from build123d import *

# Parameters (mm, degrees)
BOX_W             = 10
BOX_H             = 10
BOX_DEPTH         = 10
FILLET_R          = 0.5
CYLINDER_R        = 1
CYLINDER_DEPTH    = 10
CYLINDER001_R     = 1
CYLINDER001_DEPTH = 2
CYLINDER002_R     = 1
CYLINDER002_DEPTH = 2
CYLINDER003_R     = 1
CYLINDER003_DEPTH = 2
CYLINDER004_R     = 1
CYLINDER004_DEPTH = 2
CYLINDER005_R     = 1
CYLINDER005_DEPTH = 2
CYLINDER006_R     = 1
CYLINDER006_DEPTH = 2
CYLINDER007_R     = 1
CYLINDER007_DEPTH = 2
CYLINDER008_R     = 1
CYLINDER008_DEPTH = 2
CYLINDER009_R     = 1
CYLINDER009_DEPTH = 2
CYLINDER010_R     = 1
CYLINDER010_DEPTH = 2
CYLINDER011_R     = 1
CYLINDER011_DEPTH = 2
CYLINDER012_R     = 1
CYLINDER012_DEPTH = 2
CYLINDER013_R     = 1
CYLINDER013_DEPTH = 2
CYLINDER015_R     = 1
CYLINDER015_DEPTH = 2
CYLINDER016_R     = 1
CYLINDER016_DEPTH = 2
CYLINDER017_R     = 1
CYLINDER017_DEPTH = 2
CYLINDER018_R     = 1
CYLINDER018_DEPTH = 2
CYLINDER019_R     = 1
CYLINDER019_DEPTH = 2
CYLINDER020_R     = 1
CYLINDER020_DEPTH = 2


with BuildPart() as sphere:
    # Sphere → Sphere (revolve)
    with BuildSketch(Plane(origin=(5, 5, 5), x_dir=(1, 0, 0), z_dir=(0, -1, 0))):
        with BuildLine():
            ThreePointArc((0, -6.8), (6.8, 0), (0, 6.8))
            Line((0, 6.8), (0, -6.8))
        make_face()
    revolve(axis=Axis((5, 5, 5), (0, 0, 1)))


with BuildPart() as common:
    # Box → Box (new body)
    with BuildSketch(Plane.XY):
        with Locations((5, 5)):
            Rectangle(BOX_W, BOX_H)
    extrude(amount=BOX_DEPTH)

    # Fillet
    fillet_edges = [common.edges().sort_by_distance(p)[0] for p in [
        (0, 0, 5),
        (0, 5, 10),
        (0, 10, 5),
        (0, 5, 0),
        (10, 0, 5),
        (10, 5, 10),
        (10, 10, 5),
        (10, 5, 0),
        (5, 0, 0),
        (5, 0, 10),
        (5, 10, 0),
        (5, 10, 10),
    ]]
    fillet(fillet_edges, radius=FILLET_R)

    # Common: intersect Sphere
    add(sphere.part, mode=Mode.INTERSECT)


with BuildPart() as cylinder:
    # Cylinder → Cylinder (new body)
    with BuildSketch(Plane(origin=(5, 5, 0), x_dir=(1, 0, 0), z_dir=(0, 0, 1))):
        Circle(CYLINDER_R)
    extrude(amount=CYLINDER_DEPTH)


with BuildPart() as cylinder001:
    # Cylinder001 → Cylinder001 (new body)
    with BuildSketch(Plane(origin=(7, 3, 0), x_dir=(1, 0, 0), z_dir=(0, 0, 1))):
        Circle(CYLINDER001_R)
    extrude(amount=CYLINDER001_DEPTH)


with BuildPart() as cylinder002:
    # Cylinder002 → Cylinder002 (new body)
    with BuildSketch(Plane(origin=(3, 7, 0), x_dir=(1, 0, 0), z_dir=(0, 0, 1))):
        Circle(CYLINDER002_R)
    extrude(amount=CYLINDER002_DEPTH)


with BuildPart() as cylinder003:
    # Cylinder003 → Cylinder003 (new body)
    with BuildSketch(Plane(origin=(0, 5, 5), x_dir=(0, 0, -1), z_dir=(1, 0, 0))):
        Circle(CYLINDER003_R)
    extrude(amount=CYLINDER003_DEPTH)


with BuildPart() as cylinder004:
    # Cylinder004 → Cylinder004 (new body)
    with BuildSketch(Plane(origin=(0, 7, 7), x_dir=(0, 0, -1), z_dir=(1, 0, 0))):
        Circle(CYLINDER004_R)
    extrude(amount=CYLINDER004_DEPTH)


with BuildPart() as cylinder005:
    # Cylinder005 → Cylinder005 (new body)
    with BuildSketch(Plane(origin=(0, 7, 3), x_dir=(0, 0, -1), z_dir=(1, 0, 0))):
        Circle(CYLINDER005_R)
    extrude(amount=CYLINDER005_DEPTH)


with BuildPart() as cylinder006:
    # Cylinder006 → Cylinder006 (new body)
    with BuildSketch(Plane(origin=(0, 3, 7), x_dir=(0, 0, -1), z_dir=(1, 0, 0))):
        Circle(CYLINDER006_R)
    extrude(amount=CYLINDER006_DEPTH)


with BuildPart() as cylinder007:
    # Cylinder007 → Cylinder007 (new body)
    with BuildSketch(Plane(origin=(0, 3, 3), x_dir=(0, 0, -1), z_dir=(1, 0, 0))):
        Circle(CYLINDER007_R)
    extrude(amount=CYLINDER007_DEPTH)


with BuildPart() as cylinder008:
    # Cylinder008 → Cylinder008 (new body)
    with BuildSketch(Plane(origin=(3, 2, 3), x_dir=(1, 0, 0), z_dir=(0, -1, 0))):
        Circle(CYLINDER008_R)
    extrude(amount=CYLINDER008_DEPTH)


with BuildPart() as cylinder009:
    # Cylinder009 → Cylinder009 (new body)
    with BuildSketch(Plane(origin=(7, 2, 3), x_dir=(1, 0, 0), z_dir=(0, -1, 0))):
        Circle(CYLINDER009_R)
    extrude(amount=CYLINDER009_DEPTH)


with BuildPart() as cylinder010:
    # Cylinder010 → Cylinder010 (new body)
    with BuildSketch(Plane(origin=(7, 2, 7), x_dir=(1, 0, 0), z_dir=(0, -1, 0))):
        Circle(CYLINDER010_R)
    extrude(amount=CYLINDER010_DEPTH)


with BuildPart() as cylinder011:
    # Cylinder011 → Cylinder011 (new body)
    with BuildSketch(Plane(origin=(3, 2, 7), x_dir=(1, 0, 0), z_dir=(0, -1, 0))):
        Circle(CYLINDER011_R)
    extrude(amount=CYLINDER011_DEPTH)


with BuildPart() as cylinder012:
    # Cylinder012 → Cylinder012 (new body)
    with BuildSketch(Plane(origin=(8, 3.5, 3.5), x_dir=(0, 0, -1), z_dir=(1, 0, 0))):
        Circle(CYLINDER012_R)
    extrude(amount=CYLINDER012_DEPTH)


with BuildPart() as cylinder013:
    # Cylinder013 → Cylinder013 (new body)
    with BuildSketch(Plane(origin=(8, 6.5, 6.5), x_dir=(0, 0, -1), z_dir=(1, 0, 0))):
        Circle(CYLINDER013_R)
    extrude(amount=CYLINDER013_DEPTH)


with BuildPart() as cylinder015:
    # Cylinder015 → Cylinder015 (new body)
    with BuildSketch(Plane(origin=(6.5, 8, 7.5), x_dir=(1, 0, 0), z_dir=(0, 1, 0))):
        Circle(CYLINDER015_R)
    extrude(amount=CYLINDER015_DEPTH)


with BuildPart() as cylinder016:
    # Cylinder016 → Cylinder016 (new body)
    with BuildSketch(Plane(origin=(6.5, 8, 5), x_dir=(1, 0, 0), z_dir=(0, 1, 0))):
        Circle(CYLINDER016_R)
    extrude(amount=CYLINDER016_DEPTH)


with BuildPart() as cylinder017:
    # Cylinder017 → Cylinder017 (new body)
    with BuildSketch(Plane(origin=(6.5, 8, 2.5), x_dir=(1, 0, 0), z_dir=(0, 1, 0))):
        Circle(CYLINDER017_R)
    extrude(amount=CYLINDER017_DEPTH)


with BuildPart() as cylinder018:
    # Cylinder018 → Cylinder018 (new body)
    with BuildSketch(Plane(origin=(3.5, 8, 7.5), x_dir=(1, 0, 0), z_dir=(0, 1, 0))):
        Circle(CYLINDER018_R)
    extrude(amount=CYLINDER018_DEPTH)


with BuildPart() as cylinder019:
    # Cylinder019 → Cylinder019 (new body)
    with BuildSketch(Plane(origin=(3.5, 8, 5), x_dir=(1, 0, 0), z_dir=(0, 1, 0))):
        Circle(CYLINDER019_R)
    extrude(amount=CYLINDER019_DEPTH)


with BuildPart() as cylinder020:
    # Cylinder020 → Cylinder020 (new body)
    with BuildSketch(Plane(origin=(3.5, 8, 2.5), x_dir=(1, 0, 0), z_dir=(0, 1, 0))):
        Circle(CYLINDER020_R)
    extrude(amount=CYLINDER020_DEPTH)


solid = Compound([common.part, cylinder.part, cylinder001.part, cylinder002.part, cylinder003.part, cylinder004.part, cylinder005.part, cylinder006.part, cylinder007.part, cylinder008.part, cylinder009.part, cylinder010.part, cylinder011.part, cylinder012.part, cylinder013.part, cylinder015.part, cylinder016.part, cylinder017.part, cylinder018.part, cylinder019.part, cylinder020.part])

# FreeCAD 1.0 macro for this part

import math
import FreeCAD as App
import Part
import Sketcher


def add_polygon(sketch, points):
    """Adds a closed chain of lines whose ends are joined by coincident constraints."""
    first, n = sketch.GeometryCount, len(points)
    for a, b in zip(points, points[1:] + points[:1]):
        sketch.addGeometry(Part.LineSegment(App.Vector(*a, 0), App.Vector(*b, 0)), False)
    for i in range(n):
        sketch.addConstraint(Sketcher.Constraint("Coincident", first + i, 2, first + (i + 1) % n, 1))

doc = App.newDocument("Part")
body = doc.addObject("PartDesign::Body", "Body")

# Sketch on XZ plane
sketch1 = doc.addObject("Sketcher::SketchObject", "Sketch")
body.addObject(sketch1)
sketch1.AttachmentSupport = (doc.XZ_Plane, [""])
sketch1.MapMode = "FlatFace"
sketch1.AttachmentOffset = App.Placement(App.Vector(0, 0, -5), App.Rotation())
sketch1.addGeometry([
    Part.ArcOfCircle(Part.Circle(App.Vector(5, 5, 0), App.Vector(0, 0, 1), 7), math.radians(-90), math.radians(90)),
    Part.LineSegment(App.Vector(5, 12, 0), App.Vector(5, -2, 0)),
], False)
sketch1.addGeometry(Part.LineSegment(App.Vector(5, -2, 0), App.Vector(5, 12, 0)), True)  # axis
sketch1.addConstraint([
    Sketcher.Constraint("Coincident", 0, 1, 1, 2),
    Sketcher.Constraint("Coincident", 1, 1, 0, 2),
    Sketcher.Constraint("Vertical", 1),
    Sketcher.Constraint("Vertical", 2),
    Sketcher.Constraint("Coincident", 2, 1, 0, 1),
    Sketcher.Constraint("Equal", 1, 2),
    Sketcher.Constraint("Radius", 0, 6.8),
    Sketcher.Constraint("DistanceX", -1, 1, 0, 3, 5.0),
    Sketcher.Constraint("DistanceY", -1, 1, 0, 3, 5.0),
    Sketcher.Constraint("DistanceX", -1, 1, 0, 1, 5.0),
])
revolution = doc.addObject("PartDesign::Revolution", "Revolution")
body.addObject(revolution)
revolution.Profile = sketch1
revolution.ReferenceAxis = (sketch1, ["Axis0"])
revolution.Angle = 360
body2 = doc.addObject("PartDesign::Body", "Body001")

# Sketch on XY plane
sketch2 = doc.addObject("Sketcher::SketchObject", "Sketch001")
body2.addObject(sketch2)
sketch2.AttachmentSupport = (doc.getObject("XY_Plane001"), [""])
sketch2.MapMode = "FlatFace"
add_polygon(sketch2, [(0, 10), (0, 0), (10, 0), (10, 10)])  # lines 0-3
sketch2.addConstraint([
    Sketcher.Constraint("Vertical", 0),
    Sketcher.Constraint("Horizontal", 1),
    Sketcher.Constraint("Vertical", 2),
    Sketcher.Constraint("Horizontal", 3),
    Sketcher.Constraint("Coincident", 0, 2, -1, 1),
    Sketcher.Constraint("Equal", 3, 0),
    Sketcher.Constraint("DistanceX", 1, 1, 1, 2, 10.0),
])
pad1 = doc.addObject("PartDesign::Pad", "Pad")
body2.addObject(pad1)
pad1.Profile = sketch2
pad1.Length = 10
doc.recompute()

fillet = doc.addObject("PartDesign::Fillet", "Fillet")
body2.addObject(fillet)
fillet.Base = (pad1, ["Edge1"])
fillet.UseAllEdges = True
fillet.Radius = 0.5
doc.recompute()

boolean = doc.addObject("PartDesign::Boolean", "Boolean")
body2.addObject(boolean)
boolean.Type = "Common"
boolean.addObjects([body])
body3 = doc.addObject("PartDesign::Body", "Body002")

# Sketch on XY plane
sketch3 = doc.addObject("Sketcher::SketchObject", "Sketch002")
body3.addObject(sketch3)
sketch3.AttachmentSupport = (doc.getObject("XY_Plane002"), [""])
sketch3.MapMode = "FlatFace"
sketch3.addGeometry(Part.Circle(App.Vector(5, 5, 0), App.Vector(0, 0, 1), 1), False)
sketch3.addConstraint([
    Sketcher.Constraint("Diameter", 0, 2.0),
    Sketcher.Constraint("DistanceX", -1, 1, 0, 3, 5.0),
    Sketcher.Constraint("DistanceY", -1, 1, 0, 3, 5.0),
])
pad2 = doc.addObject("PartDesign::Pad", "Pad001")
body3.addObject(pad2)
pad2.Profile = sketch3
pad2.Length = 10
body4 = doc.addObject("PartDesign::Body", "Body003")

# Sketch on XY plane
sketch4 = doc.addObject("Sketcher::SketchObject", "Sketch003")
body4.addObject(sketch4)
sketch4.AttachmentSupport = (doc.getObject("XY_Plane003"), [""])
sketch4.MapMode = "FlatFace"
sketch4.addGeometry(Part.Circle(App.Vector(7, 3, 0), App.Vector(0, 0, 1), 1), False)
sketch4.addConstraint([
    Sketcher.Constraint("Diameter", 0, 2.0),
    Sketcher.Constraint("DistanceX", -1, 1, 0, 3, 7.0),
    Sketcher.Constraint("DistanceY", -1, 1, 0, 3, 3.0),
])
pad3 = doc.addObject("PartDesign::Pad", "Pad002")
body4.addObject(pad3)
pad3.Profile = sketch4
pad3.Length = 2
body5 = doc.addObject("PartDesign::Body", "Body004")

# Sketch on XY plane
sketch5 = doc.addObject("Sketcher::SketchObject", "Sketch004")
body5.addObject(sketch5)
sketch5.AttachmentSupport = (doc.getObject("XY_Plane004"), [""])
sketch5.MapMode = "FlatFace"
sketch5.addGeometry(Part.Circle(App.Vector(3, 7, 0), App.Vector(0, 0, 1), 1), False)
sketch5.addConstraint([
    Sketcher.Constraint("Diameter", 0, 2.0),
    Sketcher.Constraint("DistanceX", -1, 1, 0, 3, 3.0),
    Sketcher.Constraint("DistanceY", -1, 1, 0, 3, 7.0),
])
pad4 = doc.addObject("PartDesign::Pad", "Pad003")
body5.addObject(pad4)
pad4.Profile = sketch5
pad4.Length = 2
body6 = doc.addObject("PartDesign::Body", "Body005")

# Sketch on YZ plane
sketch6 = doc.addObject("Sketcher::SketchObject", "Sketch005")
body6.addObject(sketch6)
sketch6.AttachmentSupport = (doc.getObject("YZ_Plane005"), [""])
sketch6.MapMode = "FlatFace"
sketch6.addGeometry(Part.Circle(App.Vector(5, 5, 0), App.Vector(0, 0, 1), 1), False)
sketch6.addConstraint([
    Sketcher.Constraint("Diameter", 0, 2.0),
    Sketcher.Constraint("DistanceX", -1, 1, 0, 3, 5.0),
    Sketcher.Constraint("DistanceY", -1, 1, 0, 3, 5.0),
])
pad5 = doc.addObject("PartDesign::Pad", "Pad004")
body6.addObject(pad5)
pad5.Profile = sketch6
pad5.Length = 2
body7 = doc.addObject("PartDesign::Body", "Body006")

# Sketch on YZ plane
sketch7 = doc.addObject("Sketcher::SketchObject", "Sketch006")
body7.addObject(sketch7)
sketch7.AttachmentSupport = (doc.getObject("YZ_Plane006"), [""])
sketch7.MapMode = "FlatFace"
sketch7.addGeometry(Part.Circle(App.Vector(7, 7, 0), App.Vector(0, 0, 1), 1), False)
sketch7.addConstraint([
    Sketcher.Constraint("Diameter", 0, 2.0),
    Sketcher.Constraint("DistanceX", -1, 1, 0, 3, 7.0),
    Sketcher.Constraint("DistanceY", -1, 1, 0, 3, 7.0),
])
pad6 = doc.addObject("PartDesign::Pad", "Pad005")
body7.addObject(pad6)
pad6.Profile = sketch7
pad6.Length = 2
body8 = doc.addObject("PartDesign::Body", "Body007")

# Sketch on YZ plane
sketch8 = doc.addObject("Sketcher::SketchObject", "Sketch007")
body8.addObject(sketch8)
sketch8.AttachmentSupport = (doc.getObject("YZ_Plane007"), [""])
sketch8.MapMode = "FlatFace"
sketch8.addGeometry(Part.Circle(App.Vector(7, 3, 0), App.Vector(0, 0, 1), 1), False)
sketch8.addConstraint([
    Sketcher.Constraint("Diameter", 0, 2.0),
    Sketcher.Constraint("DistanceX", -1, 1, 0, 3, 7.0),
    Sketcher.Constraint("DistanceY", -1, 1, 0, 3, 3.0),
])
pad7 = doc.addObject("PartDesign::Pad", "Pad006")
body8.addObject(pad7)
pad7.Profile = sketch8
pad7.Length = 2
body9 = doc.addObject("PartDesign::Body", "Body008")

# Sketch on YZ plane
sketch9 = doc.addObject("Sketcher::SketchObject", "Sketch008")
body9.addObject(sketch9)
sketch9.AttachmentSupport = (doc.getObject("YZ_Plane008"), [""])
sketch9.MapMode = "FlatFace"
sketch9.addGeometry(Part.Circle(App.Vector(3, 7, 0), App.Vector(0, 0, 1), 1), False)
sketch9.addConstraint([
    Sketcher.Constraint("Diameter", 0, 2.0),
    Sketcher.Constraint("DistanceX", -1, 1, 0, 3, 3.0),
    Sketcher.Constraint("DistanceY", -1, 1, 0, 3, 7.0),
])
pad8 = doc.addObject("PartDesign::Pad", "Pad007")
body9.addObject(pad8)
pad8.Profile = sketch9
pad8.Length = 2
body10 = doc.addObject("PartDesign::Body", "Body009")

# Sketch on YZ plane
sketch10 = doc.addObject("Sketcher::SketchObject", "Sketch009")
body10.addObject(sketch10)
sketch10.AttachmentSupport = (doc.getObject("YZ_Plane009"), [""])
sketch10.MapMode = "FlatFace"
sketch10.addGeometry(Part.Circle(App.Vector(3, 3, 0), App.Vector(0, 0, 1), 1), False)
sketch10.addConstraint([
    Sketcher.Constraint("Diameter", 0, 2.0),
    Sketcher.Constraint("DistanceX", -1, 1, 0, 3, 3.0),
    Sketcher.Constraint("DistanceY", -1, 1, 0, 3, 3.0),
])
pad9 = doc.addObject("PartDesign::Pad", "Pad008")
body10.addObject(pad9)
pad9.Profile = sketch10
pad9.Length = 2
body11 = doc.addObject("PartDesign::Body", "Body010")

# Sketch on XZ plane
sketch11 = doc.addObject("Sketcher::SketchObject", "Sketch010")
body11.addObject(sketch11)
sketch11.AttachmentSupport = (doc.getObject("XZ_Plane010"), [""])
sketch11.MapMode = "FlatFace"
sketch11.AttachmentOffset = App.Placement(App.Vector(0, 0, -2), App.Rotation())
sketch11.addGeometry(Part.Circle(App.Vector(3, 3, 0), App.Vector(0, 0, 1), 1), False)
sketch11.addConstraint([
    Sketcher.Constraint("Diameter", 0, 2.0),
    Sketcher.Constraint("DistanceX", -1, 1, 0, 3, 3.0),
    Sketcher.Constraint("DistanceY", -1, 1, 0, 3, 3.0),
])
pad10 = doc.addObject("PartDesign::Pad", "Pad009")
body11.addObject(pad10)
pad10.Profile = sketch11
pad10.Length = 2
body12 = doc.addObject("PartDesign::Body", "Body011")

# Sketch on XZ plane
sketch12 = doc.addObject("Sketcher::SketchObject", "Sketch011")
body12.addObject(sketch12)
sketch12.AttachmentSupport = (doc.getObject("XZ_Plane011"), [""])
sketch12.MapMode = "FlatFace"
sketch12.AttachmentOffset = App.Placement(App.Vector(0, 0, -2), App.Rotation())
sketch12.addGeometry(Part.Circle(App.Vector(7, 3, 0), App.Vector(0, 0, 1), 1), False)
sketch12.addConstraint([
    Sketcher.Constraint("Diameter", 0, 2.0),
    Sketcher.Constraint("DistanceX", -1, 1, 0, 3, 7.0),
    Sketcher.Constraint("DistanceY", -1, 1, 0, 3, 3.0),
])
pad11 = doc.addObject("PartDesign::Pad", "Pad010")
body12.addObject(pad11)
pad11.Profile = sketch12
pad11.Length = 2
body13 = doc.addObject("PartDesign::Body", "Body012")

# Sketch on XZ plane
sketch13 = doc.addObject("Sketcher::SketchObject", "Sketch012")
body13.addObject(sketch13)
sketch13.AttachmentSupport = (doc.getObject("XZ_Plane012"), [""])
sketch13.MapMode = "FlatFace"
sketch13.AttachmentOffset = App.Placement(App.Vector(0, 0, -2), App.Rotation())
sketch13.addGeometry(Part.Circle(App.Vector(7, 7, 0), App.Vector(0, 0, 1), 1), False)
sketch13.addConstraint([
    Sketcher.Constraint("Diameter", 0, 2.0),
    Sketcher.Constraint("DistanceX", -1, 1, 0, 3, 7.0),
    Sketcher.Constraint("DistanceY", -1, 1, 0, 3, 7.0),
])
pad12 = doc.addObject("PartDesign::Pad", "Pad011")
body13.addObject(pad12)
pad12.Profile = sketch13
pad12.Length = 2
body14 = doc.addObject("PartDesign::Body", "Body013")

# Sketch on XZ plane
sketch14 = doc.addObject("Sketcher::SketchObject", "Sketch013")
body14.addObject(sketch14)
sketch14.AttachmentSupport = (doc.getObject("XZ_Plane013"), [""])
sketch14.MapMode = "FlatFace"
sketch14.AttachmentOffset = App.Placement(App.Vector(0, 0, -2), App.Rotation())
sketch14.addGeometry(Part.Circle(App.Vector(3, 7, 0), App.Vector(0, 0, 1), 1), False)
sketch14.addConstraint([
    Sketcher.Constraint("Diameter", 0, 2.0),
    Sketcher.Constraint("DistanceX", -1, 1, 0, 3, 3.0),
    Sketcher.Constraint("DistanceY", -1, 1, 0, 3, 7.0),
])
pad13 = doc.addObject("PartDesign::Pad", "Pad012")
body14.addObject(pad13)
pad13.Profile = sketch14
pad13.Length = 2
body15 = doc.addObject("PartDesign::Body", "Body014")

# Sketch on YZ plane
sketch15 = doc.addObject("Sketcher::SketchObject", "Sketch014")
body15.addObject(sketch15)
sketch15.AttachmentSupport = (doc.getObject("YZ_Plane014"), [""])
sketch15.MapMode = "FlatFace"
sketch15.AttachmentOffset = App.Placement(App.Vector(0, 0, 8), App.Rotation())
sketch15.addGeometry(Part.Circle(App.Vector(3.5, 3.5, 0), App.Vector(0, 0, 1), 1), False)
sketch15.addConstraint([
    Sketcher.Constraint("Diameter", 0, 2.0),
    Sketcher.Constraint("DistanceX", -1, 1, 0, 3, 3.5),
    Sketcher.Constraint("DistanceY", -1, 1, 0, 3, 3.5),
])
pad14 = doc.addObject("PartDesign::Pad", "Pad013")
body15.addObject(pad14)
pad14.Profile = sketch15
pad14.Length = 2
body16 = doc.addObject("PartDesign::Body", "Body015")

# Sketch on YZ plane
sketch16 = doc.addObject("Sketcher::SketchObject", "Sketch015")
body16.addObject(sketch16)
sketch16.AttachmentSupport = (doc.getObject("YZ_Plane015"), [""])
sketch16.MapMode = "FlatFace"
sketch16.AttachmentOffset = App.Placement(App.Vector(0, 0, 8), App.Rotation())
sketch16.addGeometry(Part.Circle(App.Vector(6.5, 6.5, 0), App.Vector(0, 0, 1), 1), False)
sketch16.addConstraint([
    Sketcher.Constraint("Diameter", 0, 2.0),
    Sketcher.Constraint("DistanceX", -1, 1, 0, 3, 6.5),
    Sketcher.Constraint("DistanceY", -1, 1, 0, 3, 6.5),
])
pad15 = doc.addObject("PartDesign::Pad", "Pad014")
body16.addObject(pad15)
pad15.Profile = sketch16
pad15.Length = 2
body17 = doc.addObject("PartDesign::Body", "Body016")

# Sketch on XZ plane
sketch17 = doc.addObject("Sketcher::SketchObject", "Sketch016")
body17.addObject(sketch17)
sketch17.AttachmentSupport = (doc.getObject("XZ_Plane016"), [""])
sketch17.MapMode = "FlatFace"
sketch17.AttachmentOffset = App.Placement(App.Vector(0, 0, -8), App.Rotation())
sketch17.addGeometry(Part.Circle(App.Vector(6.5, 7.5, 0), App.Vector(0, 0, 1), 1), False)
sketch17.addConstraint([
    Sketcher.Constraint("Diameter", 0, 2.0),
    Sketcher.Constraint("DistanceX", -1, 1, 0, 3, 6.5),
    Sketcher.Constraint("DistanceY", -1, 1, 0, 3, 7.5),
])
pad16 = doc.addObject("PartDesign::Pad", "Pad015")
body17.addObject(pad16)
pad16.Profile = sketch17
pad16.Length = 2
pad16.Reversed = True
body18 = doc.addObject("PartDesign::Body", "Body017")

# Sketch on XZ plane
sketch18 = doc.addObject("Sketcher::SketchObject", "Sketch017")
body18.addObject(sketch18)
sketch18.AttachmentSupport = (doc.getObject("XZ_Plane017"), [""])
sketch18.MapMode = "FlatFace"
sketch18.AttachmentOffset = App.Placement(App.Vector(0, 0, -8), App.Rotation())
sketch18.addGeometry(Part.Circle(App.Vector(6.5, 5, 0), App.Vector(0, 0, 1), 1), False)
sketch18.addConstraint([
    Sketcher.Constraint("Diameter", 0, 2.0),
    Sketcher.Constraint("DistanceY", -1, 1, 0, 3, 5.0),
    Sketcher.Constraint("DistanceX", -1, 1, 0, 3, 6.5),
])
pad17 = doc.addObject("PartDesign::Pad", "Pad016")
body18.addObject(pad17)
pad17.Profile = sketch18
pad17.Length = 2
pad17.Reversed = True
body19 = doc.addObject("PartDesign::Body", "Body018")

# Sketch on XZ plane
sketch19 = doc.addObject("Sketcher::SketchObject", "Sketch018")
body19.addObject(sketch19)
sketch19.AttachmentSupport = (doc.getObject("XZ_Plane018"), [""])
sketch19.MapMode = "FlatFace"
sketch19.AttachmentOffset = App.Placement(App.Vector(0, 0, -8), App.Rotation())
sketch19.addGeometry(Part.Circle(App.Vector(6.5, 2.5, 0), App.Vector(0, 0, 1), 1), False)
sketch19.addConstraint([
    Sketcher.Constraint("Diameter", 0, 2.0),
    Sketcher.Constraint("DistanceX", -1, 1, 0, 3, 6.5),
    Sketcher.Constraint("DistanceY", -1, 1, 0, 3, 2.5),
])
pad18 = doc.addObject("PartDesign::Pad", "Pad017")
body19.addObject(pad18)
pad18.Profile = sketch19
pad18.Length = 2
pad18.Reversed = True
body20 = doc.addObject("PartDesign::Body", "Body019")

# Sketch on XZ plane
sketch20 = doc.addObject("Sketcher::SketchObject", "Sketch019")
body20.addObject(sketch20)
sketch20.AttachmentSupport = (doc.getObject("XZ_Plane019"), [""])
sketch20.MapMode = "FlatFace"
sketch20.AttachmentOffset = App.Placement(App.Vector(0, 0, -8), App.Rotation())
sketch20.addGeometry(Part.Circle(App.Vector(3.5, 7.5, 0), App.Vector(0, 0, 1), 1), False)
sketch20.addConstraint([
    Sketcher.Constraint("Diameter", 0, 2.0),
    Sketcher.Constraint("DistanceX", -1, 1, 0, 3, 3.5),
    Sketcher.Constraint("DistanceY", -1, 1, 0, 3, 7.5),
])
pad19 = doc.addObject("PartDesign::Pad", "Pad018")
body20.addObject(pad19)
pad19.Profile = sketch20
pad19.Length = 2
pad19.Reversed = True
body21 = doc.addObject("PartDesign::Body", "Body020")

# Sketch on XZ plane
sketch21 = doc.addObject("Sketcher::SketchObject", "Sketch020")
body21.addObject(sketch21)
sketch21.AttachmentSupport = (doc.getObject("XZ_Plane020"), [""])
sketch21.MapMode = "FlatFace"
sketch21.AttachmentOffset = App.Placement(App.Vector(0, 0, -8), App.Rotation())
sketch21.addGeometry(Part.Circle(App.Vector(3.5, 5, 0), App.Vector(0, 0, 1), 1), False)
sketch21.addConstraint([
    Sketcher.Constraint("Diameter", 0, 2.0),
    Sketcher.Constraint("DistanceY", -1, 1, 0, 3, 5.0),
    Sketcher.Constraint("DistanceX", -1, 1, 0, 3, 3.5),
])
pad20 = doc.addObject("PartDesign::Pad", "Pad019")
body21.addObject(pad20)
pad20.Profile = sketch21
pad20.Length = 2
pad20.Reversed = True
body22 = doc.addObject("PartDesign::Body", "Body021")

# Sketch on XZ plane
sketch22 = doc.addObject("Sketcher::SketchObject", "Sketch021")
body22.addObject(sketch22)
sketch22.AttachmentSupport = (doc.getObject("XZ_Plane021"), [""])
sketch22.MapMode = "FlatFace"
sketch22.AttachmentOffset = App.Placement(App.Vector(0, 0, -8), App.Rotation())
sketch22.addGeometry(Part.Circle(App.Vector(3.5, 2.5, 0), App.Vector(0, 0, 1), 1), False)
sketch22.addConstraint([
    Sketcher.Constraint("Diameter", 0, 2.0),
    Sketcher.Constraint("DistanceX", -1, 1, 0, 3, 3.5),
    Sketcher.Constraint("DistanceY", -1, 1, 0, 3, 2.5),
])
pad21 = doc.addObject("PartDesign::Pad", "Pad020")
body22.addObject(pad21)
pad21.Profile = sketch22
pad21.Length = 2
pad21.Reversed = True

doc.recompute()
